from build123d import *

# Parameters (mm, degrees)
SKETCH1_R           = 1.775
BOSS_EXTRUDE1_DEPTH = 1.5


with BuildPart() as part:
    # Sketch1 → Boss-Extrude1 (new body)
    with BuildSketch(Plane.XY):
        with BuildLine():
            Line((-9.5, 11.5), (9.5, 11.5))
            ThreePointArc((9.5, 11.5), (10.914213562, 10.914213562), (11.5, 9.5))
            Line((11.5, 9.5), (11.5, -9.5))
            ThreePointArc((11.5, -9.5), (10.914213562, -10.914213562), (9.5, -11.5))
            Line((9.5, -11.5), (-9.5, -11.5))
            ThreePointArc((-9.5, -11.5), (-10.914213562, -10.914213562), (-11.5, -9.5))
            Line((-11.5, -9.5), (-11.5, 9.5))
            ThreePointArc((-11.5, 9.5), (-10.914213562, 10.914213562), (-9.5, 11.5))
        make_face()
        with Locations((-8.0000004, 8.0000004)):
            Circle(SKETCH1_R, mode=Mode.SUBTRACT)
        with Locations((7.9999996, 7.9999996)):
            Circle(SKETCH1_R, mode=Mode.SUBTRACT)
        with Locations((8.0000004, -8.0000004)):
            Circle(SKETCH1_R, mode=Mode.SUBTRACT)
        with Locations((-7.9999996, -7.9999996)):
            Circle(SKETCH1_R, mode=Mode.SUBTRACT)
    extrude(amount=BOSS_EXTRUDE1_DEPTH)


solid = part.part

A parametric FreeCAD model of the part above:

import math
import FreeCAD as App
import Part
import Sketcher
Q = App.Units.Quantity

doc = App.newDocument("Part")
body = doc.addObject("PartDesign::Body", "Body")

# Sketch on XY plane
sketch1 = doc.addObject("Sketcher::SketchObject", "Sketch")
body.addObject(sketch1)
sketch1.AttachmentSupport = (doc.XY_Plane, [""])
sketch1.MapMode = "FlatFace"
sketch1.addGeometry([
    Part.LineSegment(App.Vector(9.5, 11.5, 0), App.Vector(-9.5, 11.5, 0)),  # 0
    Part.ArcOfCircle(Part.Circle(App.Vector(-9.5, 9.5, 0), App.Vector(0, 0, 1), 2), math.radians(90), math.radians(180)),  # 1
    Part.LineSegment(App.Vector(-11.5, 9.5, 0), App.Vector(-11.5, -9.5, 0)),  # 2
    Part.ArcOfCircle(Part.Circle(App.Vector(-9.5, -9.5, 0), App.Vector(0, 0, 1), 2), math.radians(-180), math.radians(-90)),  # 3
    Part.LineSegment(App.Vector(-9.5, -11.5, 0), App.Vector(9.5, -11.5, 0)),  # 4
    Part.ArcOfCircle(Part.Circle(App.Vector(9.5, -9.5, 0), App.Vector(0, 0, 1), 2), math.radians(-90), math.radians(0)),  # 5
    Part.LineSegment(App.Vector(11.5, -9.5, 0), App.Vector(11.5, 9.5, 0)),  # 6
    Part.ArcOfCircle(Part.Circle(App.Vector(9.5, 9.5, 0), App.Vector(0, 0, 1), 2), math.radians(0), math.radians(90)),  # 7
    Part.Circle(App.Vector(8, -8, 0), App.Vector(0, 0, 1), 1.8),  # 8
    Part.Circle(App.Vector(-8, -8, 0), App.Vector(0, 0, 1), 1.8),  # 9
    Part.Circle(App.Vector(8, 8, 0), App.Vector(0, 0, 1), 1.8),  # 10
    Part.Circle(App.Vector(-8, 8, 0), App.Vector(0, 0, 1), 1.8),  # 11
], False)
sketch1.addConstraint([
    Sketcher.Constraint("Tangent", 0, 2, 1, 1),
    Sketcher.Constraint("Tangent", 1, 2, 2, 1),
    Sketcher.Constraint("Tangent", 2, 2, 3, 1),
    Sketcher.Constraint("Tangent", 3, 2, 4, 1),
    Sketcher.Constraint("Tangent", 4, 2, 5, 1),
    Sketcher.Constraint("Tangent", 5, 2, 6, 1),
    Sketcher.Constraint("Tangent", 6, 2, 7, 1),
    Sketcher.Constraint("Tangent", 7, 2, 0, 1),
    Sketcher.Constraint("Horizontal", 0),
    Sketcher.Constraint("Vertical", 2),
    Sketcher.Constraint("Horizontal", 4),
    Sketcher.Constraint("Vertical", 6),
    Sketcher.Constraint("Equal", 1, 3),
    Sketcher.Constraint("Equal", 3, 5),
    Sketcher.Constraint("Equal", 5, 7),
    Sketcher.Constraint("Equal", 8, 9),
    Sketcher.Constraint("Equal", 9, 10),
    Sketcher.Constraint("Equal", 10, 11),
    Sketcher.Constraint("Symmetric", 1, 3, 5, 3, -1, 1),
    Sketcher.Constraint("Symmetric", 9, 3, 10, 3, -1, 1),
    Sketcher.Constraint("Symmetric", 8, 3, 11, 3, -1, 1),
    Sketcher.Constraint("Symmetric", 8, 3, 9, 3, -2),
    Sketcher.Constraint("Equal", 4, 2),
    Sketcher.Constraint("Radius", 1, Q("2 mm")),
    Sketcher.Constraint("Diameter", 8, Q("3.55 mm")),
    Sketcher.Constraint("DistanceX", 0, 2, 0, 1, Q("19 mm")),
    Sketcher.Constraint("DistanceX", -1, 1, 8, 3, Q("8 mm")),
    Sketcher.Constraint("DistanceY", 8, 3, -1, 1, Q("8 mm")),
])
pad1 = doc.addObject("PartDesign::Pad", "Pad")
body.addObject(pad1)
pad1.Profile = sketch1
pad1.Length = 1.5

doc.recompute()
